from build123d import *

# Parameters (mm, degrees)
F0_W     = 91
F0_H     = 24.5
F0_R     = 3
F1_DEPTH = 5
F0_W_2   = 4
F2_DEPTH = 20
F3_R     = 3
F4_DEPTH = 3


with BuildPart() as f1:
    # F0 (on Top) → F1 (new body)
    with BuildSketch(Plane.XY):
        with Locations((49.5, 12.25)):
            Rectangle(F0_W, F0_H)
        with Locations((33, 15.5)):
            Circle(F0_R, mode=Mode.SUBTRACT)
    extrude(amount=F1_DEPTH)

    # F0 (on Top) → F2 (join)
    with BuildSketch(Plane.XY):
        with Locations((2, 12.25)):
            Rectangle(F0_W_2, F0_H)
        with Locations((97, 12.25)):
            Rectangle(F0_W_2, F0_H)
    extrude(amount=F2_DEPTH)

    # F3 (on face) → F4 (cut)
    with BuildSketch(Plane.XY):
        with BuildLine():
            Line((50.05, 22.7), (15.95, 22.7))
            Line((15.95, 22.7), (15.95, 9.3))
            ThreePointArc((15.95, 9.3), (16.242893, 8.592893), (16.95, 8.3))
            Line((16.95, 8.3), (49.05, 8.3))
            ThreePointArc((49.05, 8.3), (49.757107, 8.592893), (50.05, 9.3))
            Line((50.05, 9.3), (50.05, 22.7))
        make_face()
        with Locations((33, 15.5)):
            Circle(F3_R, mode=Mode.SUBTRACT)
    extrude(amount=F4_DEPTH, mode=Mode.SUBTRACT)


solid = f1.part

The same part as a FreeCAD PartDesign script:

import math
import FreeCAD as App
import Part
import Sketcher

V = App.Vector


def add_polygon(sketch, points):
    """Adds a closed chain of lines whose ends are joined by coincident constraints."""
    first, n = sketch.GeometryCount, len(points)
    for a, b in zip(points, points[1:] + points[:1]):
        sketch.addGeometry(Part.LineSegment(App.Vector(*a, 0), App.Vector(*b, 0)), False)
    for i in range(n):
        sketch.addConstraint(Sketcher.Constraint("Coincident", first + i, 2, first + (i + 1) % n, 1))

doc = App.newDocument("Part")
body = doc.addObject("PartDesign::Body", "Body")

# Sketch on XY plane
sketch1 = body.newObject("Sketcher::SketchObject", "Sketch")
sketch1.AttachmentSupport = (doc.getObject("XY_Plane"), [""])
sketch1.MapMode = "FlatFace"
add_polygon(sketch1, [(4, 24.5), (4, 0), (95, 0), (95, 24.5)])  # lines 0-3
sketch1.addGeometry(Part.Circle(V(33, 15.5, 0), V(0, 0, 1), 3), False)  # 4
sketch1.addConstraint([
    Sketcher.Constraint("Vertical", 0),
    Sketcher.Constraint("Horizontal", 1),
    Sketcher.Constraint("Vertical", 2),
    Sketcher.Constraint("Horizontal", 3),
    Sketcher.Constraint("PointOnObject", 0, 2, -1),
    Sketcher.Constraint("Diameter", 4, 6.0),
    Sketcher.Constraint("DistanceX", 1, 1, 1, 2, 91.0),
    Sketcher.Constraint("DistanceY", 0, 2, 0, 1, 24.5),
    Sketcher.Constraint("DistanceX", -1, 1, 4, 3, 33.0),
    Sketcher.Constraint("DistanceX", -1, 1, 0, 2, 4.0),
    Sketcher.Constraint("DistanceY", 4, 3, 2, 2, 9.0),
])
pad1 = body.newObject("PartDesign::Pad", "Pad")
pad1.Profile = sketch1
pad1.Length = 5

# Sketch on XY plane
sketch2 = body.newObject("Sketcher::SketchObject", "Sketch001")
sketch2.AttachmentSupport = (doc.getObject("XY_Plane"), [""])
sketch2.MapMode = "FlatFace"
add_polygon(sketch2, [(0, 24.5), (0, 0), (4, 0), (4, 24.5)])  # lines 0-3
add_polygon(sketch2, [(95, 24.5), (95, 0), (99, 0), (99, 24.5)])  # lines 4-7
sketch2.addConstraint([
    Sketcher.Constraint("Vertical", 0),
    Sketcher.Constraint("Horizontal", 1),
    Sketcher.Constraint("Vertical", 2),
    Sketcher.Constraint("Horizontal", 3),
    Sketcher.Constraint("Vertical", 4),
    Sketcher.Constraint("Horizontal", 5),
    Sketcher.Constraint("Vertical", 6),
    Sketcher.Constraint("Horizontal", 7),
    Sketcher.Constraint("Coincident", 0, 2, -1, 1),
    Sketcher.Constraint("PointOnObject", 4, 2, -1),
    Sketcher.Constraint("Horizontal", 3, 2, 6, 2),
    Sketcher.Constraint("Equal", 3, 5),
    Sketcher.Constraint("DistanceX", 1, 1, 1, 2, 4.0),
    Sketcher.Constraint("DistanceY", 0, 2, 0, 1, 24.5),
    Sketcher.Constraint("DistanceX", -1, 1, 4, 2, 95.0),
])
pad2 = body.newObject("PartDesign::Pad", "Pad001")
pad2.Profile = sketch2
pad2.Length = 20

# Sketch on XY plane
sketch3 = body.newObject("Sketcher::SketchObject", "Sketch002")
sketch3.AttachmentSupport = (doc.getObject("XY_Plane"), [""])
sketch3.MapMode = "FlatFace"
sketch3.addGeometry([
    Part.LineSegment(V(50.05, 22.7, 0), V(15.95, 22.7, 0)),  # 0
    Part.LineSegment(V(15.95, 22.7, 0), V(15.95, 9.3, 0)),  # 1
    Part.ArcOfCircle(Part.Circle(V(16.949999, 9.299999, 0), V(0, 0, 1), 0.999999), math.radians(179.999957), math.radians(270.000043)),  # 2
    Part.LineSegment(V(16.95, 8.3, 0), V(49.05, 8.3, 0)),  # 3
    Part.ArcOfCircle(Part.Circle(V(49.050001, 9.299999, 0), V(0, 0, 1), 0.999999), math.radians(-90.000043), math.radians(0.000043)),  # 4
    Part.LineSegment(V(50.05, 9.3, 0), V(50.05, 22.7, 0)),  # 5
    Part.Circle(V(33, 15.5, 0), V(0, 0, 1), 3),  # 6
], False)
sketch3.addConstraint([
    Sketcher.Constraint("Coincident", 0, 2, 1, 1),
    Sketcher.Constraint("Tangent", 1, 2, 2, 1),
    Sketcher.Constraint("Tangent", 2, 2, 3, 1),
    Sketcher.Constraint("Tangent", 3, 2, 4, 1),
    Sketcher.Constraint("Tangent", 4, 2, 5, 1),
    Sketcher.Constraint("Coincident", 5, 2, 0, 1),
    Sketcher.Constraint("Horizontal", 0),
    Sketcher.Constraint("Vertical", 1),
    Sketcher.Constraint("Horizontal", 3),
    Sketcher.Constraint("Vertical", 5),
    Sketcher.Constraint("Equal", 2, 4),
    Sketcher.Constraint("Diameter", 6, 6.0),
    Sketcher.Constraint("Radius", 2, 0.999999),
    Sketcher.Constraint("DistanceX", 0, 2, 0, 1, 34.1),
    Sketcher.Constraint("DistanceY", 1, 2, 1, 1, 13.4),
    Sketcher.Constraint("DistanceX", -1, 1, 6, 3, 33.0),
    Sketcher.Constraint("DistanceY", -1, 1, 2, 3, 9.299999),
    Sketcher.Constraint("DistanceY", -1, 1, 6, 3, 15.5),
    Sketcher.Constraint("DistanceX", -1, 1, 2, 3, 16.949999),
])
pocket1 = body.newObject("PartDesign::Pocket", "Pocket")
pocket1.Profile = sketch3
pocket1.Length = 3
pocket1.Reversed = True

doc.recompute()
